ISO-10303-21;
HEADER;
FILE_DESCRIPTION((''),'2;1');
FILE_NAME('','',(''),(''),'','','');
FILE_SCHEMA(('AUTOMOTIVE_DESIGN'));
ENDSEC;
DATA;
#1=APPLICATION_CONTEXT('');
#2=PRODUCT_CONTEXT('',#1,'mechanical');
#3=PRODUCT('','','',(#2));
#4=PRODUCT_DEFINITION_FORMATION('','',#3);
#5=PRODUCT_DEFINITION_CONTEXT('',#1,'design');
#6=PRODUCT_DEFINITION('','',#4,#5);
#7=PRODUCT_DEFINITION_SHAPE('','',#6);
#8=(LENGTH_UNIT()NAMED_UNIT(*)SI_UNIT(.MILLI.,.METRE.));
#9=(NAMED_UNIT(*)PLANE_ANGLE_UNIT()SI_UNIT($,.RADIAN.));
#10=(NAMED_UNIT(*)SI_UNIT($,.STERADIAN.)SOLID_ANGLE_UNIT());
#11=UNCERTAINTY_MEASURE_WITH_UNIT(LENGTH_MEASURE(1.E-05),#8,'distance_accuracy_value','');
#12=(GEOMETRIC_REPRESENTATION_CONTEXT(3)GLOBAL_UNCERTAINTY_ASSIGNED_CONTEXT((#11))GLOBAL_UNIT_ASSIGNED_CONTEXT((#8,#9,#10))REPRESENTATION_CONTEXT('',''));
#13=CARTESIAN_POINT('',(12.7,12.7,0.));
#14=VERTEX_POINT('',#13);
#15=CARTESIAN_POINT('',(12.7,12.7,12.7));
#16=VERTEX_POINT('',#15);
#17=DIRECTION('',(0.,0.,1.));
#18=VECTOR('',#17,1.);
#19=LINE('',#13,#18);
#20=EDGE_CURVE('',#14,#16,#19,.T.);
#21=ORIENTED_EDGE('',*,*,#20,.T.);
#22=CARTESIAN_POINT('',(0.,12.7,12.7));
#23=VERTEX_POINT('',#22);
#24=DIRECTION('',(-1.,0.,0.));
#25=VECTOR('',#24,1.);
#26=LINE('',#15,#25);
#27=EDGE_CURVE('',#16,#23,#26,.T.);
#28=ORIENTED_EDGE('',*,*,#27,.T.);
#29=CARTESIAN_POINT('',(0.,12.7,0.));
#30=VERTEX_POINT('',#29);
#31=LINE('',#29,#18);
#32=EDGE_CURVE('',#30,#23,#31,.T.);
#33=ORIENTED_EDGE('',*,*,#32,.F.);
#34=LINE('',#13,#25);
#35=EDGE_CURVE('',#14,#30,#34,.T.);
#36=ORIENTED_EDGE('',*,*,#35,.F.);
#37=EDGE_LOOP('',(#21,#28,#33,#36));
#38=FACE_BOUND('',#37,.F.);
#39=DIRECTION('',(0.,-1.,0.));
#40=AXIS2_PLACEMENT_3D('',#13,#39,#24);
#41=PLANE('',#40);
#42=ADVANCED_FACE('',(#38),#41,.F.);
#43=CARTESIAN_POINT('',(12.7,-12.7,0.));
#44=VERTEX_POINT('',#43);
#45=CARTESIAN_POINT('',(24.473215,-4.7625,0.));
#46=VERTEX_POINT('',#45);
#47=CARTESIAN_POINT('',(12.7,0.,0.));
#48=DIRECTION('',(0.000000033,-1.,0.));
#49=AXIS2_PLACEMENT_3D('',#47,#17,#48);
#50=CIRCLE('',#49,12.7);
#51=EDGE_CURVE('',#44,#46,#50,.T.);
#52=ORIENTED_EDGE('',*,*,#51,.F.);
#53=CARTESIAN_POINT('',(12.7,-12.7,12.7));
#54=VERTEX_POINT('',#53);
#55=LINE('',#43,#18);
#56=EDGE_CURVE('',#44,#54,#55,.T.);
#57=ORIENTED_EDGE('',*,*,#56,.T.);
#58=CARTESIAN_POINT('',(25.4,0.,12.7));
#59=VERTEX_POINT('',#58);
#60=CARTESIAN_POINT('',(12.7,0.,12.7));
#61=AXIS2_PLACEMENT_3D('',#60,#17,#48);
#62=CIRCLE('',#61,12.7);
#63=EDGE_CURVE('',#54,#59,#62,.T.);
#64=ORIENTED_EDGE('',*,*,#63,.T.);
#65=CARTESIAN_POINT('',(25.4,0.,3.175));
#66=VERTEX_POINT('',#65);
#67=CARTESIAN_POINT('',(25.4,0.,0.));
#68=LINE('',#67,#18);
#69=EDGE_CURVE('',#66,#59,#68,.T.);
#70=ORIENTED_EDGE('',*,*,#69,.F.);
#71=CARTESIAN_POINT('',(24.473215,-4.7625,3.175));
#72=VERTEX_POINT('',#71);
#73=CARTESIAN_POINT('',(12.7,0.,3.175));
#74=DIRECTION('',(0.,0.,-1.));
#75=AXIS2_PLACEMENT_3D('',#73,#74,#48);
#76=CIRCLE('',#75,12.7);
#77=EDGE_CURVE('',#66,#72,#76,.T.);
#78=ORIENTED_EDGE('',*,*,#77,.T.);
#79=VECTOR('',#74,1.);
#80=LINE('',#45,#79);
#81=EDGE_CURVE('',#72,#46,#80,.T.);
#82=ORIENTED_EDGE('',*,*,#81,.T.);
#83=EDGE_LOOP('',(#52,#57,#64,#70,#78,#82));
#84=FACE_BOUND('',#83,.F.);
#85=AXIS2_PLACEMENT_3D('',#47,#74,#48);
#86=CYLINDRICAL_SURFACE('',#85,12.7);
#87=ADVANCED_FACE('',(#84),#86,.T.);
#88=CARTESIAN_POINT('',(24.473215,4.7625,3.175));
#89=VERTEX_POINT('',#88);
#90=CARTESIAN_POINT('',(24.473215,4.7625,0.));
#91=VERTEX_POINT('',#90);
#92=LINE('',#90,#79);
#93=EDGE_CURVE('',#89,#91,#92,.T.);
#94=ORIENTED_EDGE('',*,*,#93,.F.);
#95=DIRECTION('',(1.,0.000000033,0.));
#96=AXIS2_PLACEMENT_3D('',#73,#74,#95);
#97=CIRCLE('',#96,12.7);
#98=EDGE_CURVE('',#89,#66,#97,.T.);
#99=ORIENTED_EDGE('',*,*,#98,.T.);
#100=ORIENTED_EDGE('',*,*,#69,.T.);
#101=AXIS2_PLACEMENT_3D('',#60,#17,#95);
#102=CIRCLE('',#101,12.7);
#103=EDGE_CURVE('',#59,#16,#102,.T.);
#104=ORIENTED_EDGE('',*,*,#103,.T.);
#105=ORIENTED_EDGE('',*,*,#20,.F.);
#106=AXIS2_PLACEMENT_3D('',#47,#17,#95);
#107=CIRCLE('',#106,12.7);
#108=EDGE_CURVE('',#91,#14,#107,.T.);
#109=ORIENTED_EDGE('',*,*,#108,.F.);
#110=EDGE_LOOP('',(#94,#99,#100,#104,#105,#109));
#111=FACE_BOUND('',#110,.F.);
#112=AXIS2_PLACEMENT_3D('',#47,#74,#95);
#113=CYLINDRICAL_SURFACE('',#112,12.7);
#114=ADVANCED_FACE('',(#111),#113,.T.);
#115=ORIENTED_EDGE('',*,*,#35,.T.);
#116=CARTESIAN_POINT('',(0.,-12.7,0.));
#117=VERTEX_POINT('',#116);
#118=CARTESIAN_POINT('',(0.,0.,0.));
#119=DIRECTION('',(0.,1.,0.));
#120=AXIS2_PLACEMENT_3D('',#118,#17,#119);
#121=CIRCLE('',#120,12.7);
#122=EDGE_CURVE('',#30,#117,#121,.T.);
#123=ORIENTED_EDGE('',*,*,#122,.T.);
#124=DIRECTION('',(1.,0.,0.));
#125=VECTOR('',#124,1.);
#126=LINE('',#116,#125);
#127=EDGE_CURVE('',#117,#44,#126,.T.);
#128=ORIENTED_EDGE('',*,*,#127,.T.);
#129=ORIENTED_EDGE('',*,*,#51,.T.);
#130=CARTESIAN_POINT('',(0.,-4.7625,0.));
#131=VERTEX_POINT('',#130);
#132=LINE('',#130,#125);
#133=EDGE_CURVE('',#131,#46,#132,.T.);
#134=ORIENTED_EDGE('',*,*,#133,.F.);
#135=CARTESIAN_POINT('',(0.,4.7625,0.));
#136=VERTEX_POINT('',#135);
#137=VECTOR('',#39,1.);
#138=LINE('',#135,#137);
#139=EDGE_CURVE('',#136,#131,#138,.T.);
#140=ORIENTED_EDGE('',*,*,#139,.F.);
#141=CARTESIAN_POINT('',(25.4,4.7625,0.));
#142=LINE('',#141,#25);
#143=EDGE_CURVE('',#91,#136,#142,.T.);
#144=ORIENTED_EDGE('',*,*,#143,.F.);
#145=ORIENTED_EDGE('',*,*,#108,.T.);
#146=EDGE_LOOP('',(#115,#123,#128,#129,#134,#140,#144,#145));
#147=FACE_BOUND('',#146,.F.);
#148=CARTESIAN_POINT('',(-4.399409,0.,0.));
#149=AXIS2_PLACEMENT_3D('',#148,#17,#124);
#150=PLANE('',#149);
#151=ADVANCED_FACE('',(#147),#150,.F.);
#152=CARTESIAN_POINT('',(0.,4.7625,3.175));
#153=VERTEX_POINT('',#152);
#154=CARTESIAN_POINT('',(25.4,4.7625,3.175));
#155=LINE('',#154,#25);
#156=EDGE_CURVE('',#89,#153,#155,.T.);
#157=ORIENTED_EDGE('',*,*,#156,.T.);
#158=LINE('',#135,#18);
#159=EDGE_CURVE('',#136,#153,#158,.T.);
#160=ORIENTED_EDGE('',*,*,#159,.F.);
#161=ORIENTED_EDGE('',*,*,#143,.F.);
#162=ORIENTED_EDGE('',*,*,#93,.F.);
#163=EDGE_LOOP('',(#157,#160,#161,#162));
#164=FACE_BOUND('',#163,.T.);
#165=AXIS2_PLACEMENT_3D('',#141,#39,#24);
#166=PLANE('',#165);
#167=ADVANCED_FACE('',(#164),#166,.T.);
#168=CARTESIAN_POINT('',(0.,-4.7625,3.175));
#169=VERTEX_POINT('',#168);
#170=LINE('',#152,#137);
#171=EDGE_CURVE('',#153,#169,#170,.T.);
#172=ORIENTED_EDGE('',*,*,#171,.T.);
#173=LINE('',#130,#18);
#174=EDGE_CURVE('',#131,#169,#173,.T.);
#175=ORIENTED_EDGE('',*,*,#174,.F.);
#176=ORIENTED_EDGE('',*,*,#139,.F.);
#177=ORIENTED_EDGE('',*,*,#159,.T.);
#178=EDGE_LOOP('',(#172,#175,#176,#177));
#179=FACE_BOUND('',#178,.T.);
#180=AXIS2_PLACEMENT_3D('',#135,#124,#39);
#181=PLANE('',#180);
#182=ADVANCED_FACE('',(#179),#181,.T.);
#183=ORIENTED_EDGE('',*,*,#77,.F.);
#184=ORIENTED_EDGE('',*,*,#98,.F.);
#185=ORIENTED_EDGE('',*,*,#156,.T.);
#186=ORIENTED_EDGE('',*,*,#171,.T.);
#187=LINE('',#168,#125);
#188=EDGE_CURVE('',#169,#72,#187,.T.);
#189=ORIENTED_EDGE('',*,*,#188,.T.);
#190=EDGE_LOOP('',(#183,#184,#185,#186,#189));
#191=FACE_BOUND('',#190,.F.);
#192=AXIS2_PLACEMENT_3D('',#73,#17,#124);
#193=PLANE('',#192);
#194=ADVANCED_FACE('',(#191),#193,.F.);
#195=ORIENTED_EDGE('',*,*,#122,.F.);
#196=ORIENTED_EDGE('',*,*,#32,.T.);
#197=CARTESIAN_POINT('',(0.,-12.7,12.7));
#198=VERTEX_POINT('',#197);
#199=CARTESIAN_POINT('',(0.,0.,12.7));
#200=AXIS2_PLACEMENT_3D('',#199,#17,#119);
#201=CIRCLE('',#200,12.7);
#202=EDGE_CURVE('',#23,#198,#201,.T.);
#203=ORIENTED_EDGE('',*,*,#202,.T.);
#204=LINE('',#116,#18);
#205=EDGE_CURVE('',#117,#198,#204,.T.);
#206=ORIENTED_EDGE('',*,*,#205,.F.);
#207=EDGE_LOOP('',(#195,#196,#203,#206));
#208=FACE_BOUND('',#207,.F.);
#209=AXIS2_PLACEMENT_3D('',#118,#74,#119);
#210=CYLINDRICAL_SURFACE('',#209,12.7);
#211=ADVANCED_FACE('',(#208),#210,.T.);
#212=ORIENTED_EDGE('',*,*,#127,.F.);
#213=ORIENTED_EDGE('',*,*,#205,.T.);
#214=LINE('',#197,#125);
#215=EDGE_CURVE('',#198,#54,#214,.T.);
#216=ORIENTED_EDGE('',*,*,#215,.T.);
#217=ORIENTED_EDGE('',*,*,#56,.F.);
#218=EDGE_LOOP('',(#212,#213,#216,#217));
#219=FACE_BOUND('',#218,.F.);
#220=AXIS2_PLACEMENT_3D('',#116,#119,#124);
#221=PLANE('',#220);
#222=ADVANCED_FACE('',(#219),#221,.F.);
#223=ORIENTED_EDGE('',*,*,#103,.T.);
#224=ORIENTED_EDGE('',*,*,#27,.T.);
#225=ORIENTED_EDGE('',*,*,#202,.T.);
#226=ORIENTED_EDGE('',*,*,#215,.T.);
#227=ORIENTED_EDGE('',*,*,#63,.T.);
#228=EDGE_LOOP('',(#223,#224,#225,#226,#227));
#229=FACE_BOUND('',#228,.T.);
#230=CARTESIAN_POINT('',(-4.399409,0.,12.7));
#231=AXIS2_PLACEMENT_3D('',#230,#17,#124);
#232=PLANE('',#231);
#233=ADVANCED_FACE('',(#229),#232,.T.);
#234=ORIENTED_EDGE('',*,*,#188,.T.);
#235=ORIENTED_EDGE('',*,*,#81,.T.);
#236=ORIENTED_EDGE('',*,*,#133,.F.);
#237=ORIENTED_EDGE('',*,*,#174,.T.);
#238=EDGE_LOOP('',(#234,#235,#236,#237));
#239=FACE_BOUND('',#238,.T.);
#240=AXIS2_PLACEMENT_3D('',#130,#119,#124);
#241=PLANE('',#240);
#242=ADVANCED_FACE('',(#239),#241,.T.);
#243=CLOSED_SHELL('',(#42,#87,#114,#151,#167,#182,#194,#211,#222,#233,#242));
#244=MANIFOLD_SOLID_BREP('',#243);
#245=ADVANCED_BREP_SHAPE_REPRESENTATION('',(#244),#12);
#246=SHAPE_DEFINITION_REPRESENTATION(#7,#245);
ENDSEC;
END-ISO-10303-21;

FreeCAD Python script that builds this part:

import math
import FreeCAD as App
import Part
import Sketcher
from FreeCAD import Vector
Q = App.Units.Quantity

doc = App.newDocument("Part")
body = doc.addObject("PartDesign::Body", "Body")

# Sketch on XY plane
sketch1 = body.newObject("Sketcher::SketchObject", "Sketch")
sketch1.AttachmentSupport = (doc.getObject("XY_Plane"), [""])
sketch1.MapMode = "FlatFace"
sketch1.addGeometry(Part.LineSegment(Vector(0, -12.7, 0), Vector(12.7, -12.7, 0)), False)
sketch1.addGeometry(Part.ArcOfCircle(Part.Circle(Vector(12.7, 0, 0), Vector(0, 0, 1), 12.7), math.radians(-89.999998), math.radians(-0.000002)), False)
sketch1.addGeometry(Part.ArcOfCircle(Part.Circle(Vector(12.7, 0, 0), Vector(0, 0, 1), 12.7), math.radians(0.000002), math.radians(89.999998)), False)
sketch1.addGeometry(Part.LineSegment(Vector(12.7, 12.7, 0), Vector(0, 12.7, 0)), False)
sketch1.addGeometry(Part.ArcOfCircle(Part.Circle(Vector(0, 0, 0), Vector(0, 0, 1), 12.7), math.radians(90), math.radians(270)), False)
sketch1.addConstraint(Sketcher.Constraint("Tangent", 0, 2, 1, 1))
sketch1.addConstraint(Sketcher.Constraint("Tangent", 1, 2, 2, 1))
sketch1.addConstraint(Sketcher.Constraint("Tangent", 2, 2, 3, 1))
sketch1.addConstraint(Sketcher.Constraint("Tangent", 3, 2, 4, 1))
sketch1.addConstraint(Sketcher.Constraint("Tangent", 4, 2, 0, 1))
sketch1.addConstraint(Sketcher.Constraint("Horizontal", 0))
sketch1.addConstraint(Sketcher.Constraint("Horizontal", 3))
sketch1.addConstraint(Sketcher.Constraint("Coincident", 4, 3, -1, 1))
sketch1.addConstraint(Sketcher.Constraint("Equal", 1, 2))
sketch1.addConstraint(Sketcher.Constraint("PointOnObject", 1, 2, -1))
sketch1.addConstraint(Sketcher.Constraint("Radius", 1, Q("0.5 in")))
sketch1.addConstraint(Sketcher.Constraint("DistanceX", 0, 1, 0, 2, Q("0.5 in")))
pad1 = body.newObject("PartDesign::Pad", "Pad")
pad1.Profile = sketch1
pad1.Length = Q("0.5 in")

# Sketch on XY plane
sketch2 = body.newObject("Sketcher::SketchObject", "Sketch001")
sketch2.AttachmentSupport = (doc.getObject("XY_Plane"), [""])
sketch2.MapMode = "FlatFace"
sketch2.addGeometry(Part.LineSegment(Vector(0, 4.7625, 0), Vector(0, -4.7625, 0)), False)
sketch2.addGeometry(Part.LineSegment(Vector(0, -4.7625, 0), Vector(25.4, -4.7625, 0)), False)
sketch2.addGeometry(Part.LineSegment(Vector(25.4, -4.7625, 0), Vector(25.4, 4.7625, 0)), False)
sketch2.addGeometry(Part.LineSegment(Vector(25.4, 4.7625, 0), Vector(0, 4.7625, 0)), False)
sketch2.addConstraint(Sketcher.Constraint("Coincident", 0, 2, 1, 1))
sketch2.addConstraint(Sketcher.Constraint("Coincident", 1, 2, 2, 1))
sketch2.addConstraint(Sketcher.Constraint("Coincident", 2, 2, 3, 1))
sketch2.addConstraint(Sketcher.Constraint("Coincident", 3, 2, 0, 1))
sketch2.addConstraint(Sketcher.Constraint("Vertical", 0))
sketch2.addConstraint(Sketcher.Constraint("Horizontal", 1))
sketch2.addConstraint(Sketcher.Constraint("Vertical", 2))
sketch2.addConstraint(Sketcher.Constraint("Horizontal", 3))
sketch2.addConstraint(Sketcher.Constraint("Symmetric", 0, 2, 3, 2, -1, 1))
sketch2.addConstraint(Sketcher.Constraint("DistanceX", 1, 1, 1, 2, Q("1 in")))
sketch2.addConstraint(Sketcher.Constraint("DistanceY", 0, 2, 0, 1, Q("0.375 in")))
pocket1 = body.newObject("PartDesign::Pocket", "Pocket")
pocket1.Profile = sketch2
pocket1.Length = Q("0.125 in")
pocket1.Reversed = True

doc.recompute()
